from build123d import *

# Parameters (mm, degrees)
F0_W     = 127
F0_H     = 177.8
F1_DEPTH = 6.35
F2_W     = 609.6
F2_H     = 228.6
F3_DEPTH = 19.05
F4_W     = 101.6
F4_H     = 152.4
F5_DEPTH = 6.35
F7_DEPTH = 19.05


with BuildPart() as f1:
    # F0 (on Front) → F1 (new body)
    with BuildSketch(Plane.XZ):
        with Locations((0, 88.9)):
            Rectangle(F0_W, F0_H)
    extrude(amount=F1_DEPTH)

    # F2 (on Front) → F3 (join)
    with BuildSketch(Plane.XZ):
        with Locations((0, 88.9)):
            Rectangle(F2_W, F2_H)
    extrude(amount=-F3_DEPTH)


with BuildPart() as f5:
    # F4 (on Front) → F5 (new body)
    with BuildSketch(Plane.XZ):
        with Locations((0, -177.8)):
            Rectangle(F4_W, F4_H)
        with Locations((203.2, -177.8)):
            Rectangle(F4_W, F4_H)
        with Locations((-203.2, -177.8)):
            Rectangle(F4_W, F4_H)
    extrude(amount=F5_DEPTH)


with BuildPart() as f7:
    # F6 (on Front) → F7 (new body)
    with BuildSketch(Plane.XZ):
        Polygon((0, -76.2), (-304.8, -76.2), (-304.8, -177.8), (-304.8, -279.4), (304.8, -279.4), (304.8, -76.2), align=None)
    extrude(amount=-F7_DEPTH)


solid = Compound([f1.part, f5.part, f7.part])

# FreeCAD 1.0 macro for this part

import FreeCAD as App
import Part
import Sketcher
from FreeCAD import Vector
Q = App.Units.Quantity

doc = App.newDocument("Part")
body = doc.addObject("PartDesign::Body", "Body")

sketch1 = body.newObject("Sketcher::SketchObject", "Sketch")
sketch1.AttachmentSupport = (doc.getObject("XZ_Plane"), [""])
sketch1.MapMode = "FlatFace"
sketch1.addGeometry(Part.LineSegment(Vector(-64, 178, 0), Vector(-64, 0, 0)), False)
sketch1.addGeometry(Part.LineSegment(Vector(-64, 0, 0), Vector(64, 0, 0)), False)
sketch1.addGeometry(Part.LineSegment(Vector(64, 0, 0), Vector(64, 178, 0)), False)
sketch1.addGeometry(Part.LineSegment(Vector(64, 178, 0), Vector(-64, 178, 0)), False)
sketch1.addConstraint(Sketcher.Constraint("Coincident", 0, 2, 1, 1))
sketch1.addConstraint(Sketcher.Constraint("Coincident", 1, 2, 2, 1))
sketch1.addConstraint(Sketcher.Constraint("Coincident", 2, 2, 3, 1))
sketch1.addConstraint(Sketcher.Constraint("Coincident", 3, 2, 0, 1))
sketch1.addConstraint(Sketcher.Constraint("Vertical", 0))
sketch1.addConstraint(Sketcher.Constraint("Horizontal", 1))
sketch1.addConstraint(Sketcher.Constraint("Vertical", 2))
sketch1.addConstraint(Sketcher.Constraint("Horizontal", 3))
sketch1.addConstraint(Sketcher.Constraint("Symmetric", 0, 2, 1, 2, -1, 1))
sketch1.addConstraint(Sketcher.Constraint("DistanceX", 1, 1, 1, 2, Q("5 in")))
sketch1.addConstraint(Sketcher.Constraint("DistanceY", 0, 2, 0, 1, Q("7 in")))
pad1 = body.newObject("PartDesign::Pad", "Pad")
pad1.Profile = sketch1
pad1.Length = Q("0.25 in")

sketch2 = body.newObject("Sketcher::SketchObject", "Sketch001")
sketch2.AttachmentSupport = (doc.getObject("XZ_Plane"), [""])
sketch2.MapMode = "FlatFace"
sketch2.addGeometry(Part.LineSegment(Vector(-305, 203, 0), Vector(-305, -25, 0)), False)
sketch2.addGeometry(Part.LineSegment(Vector(-305, -25, 0), Vector(305, -25, 0)), False)
sketch2.addGeometry(Part.LineSegment(Vector(305, -25, 0), Vector(305, 203, 0)), False)
sketch2.addGeometry(Part.LineSegment(Vector(305, 203, 0), Vector(-305, 203, 0)), False)
sketch2.addConstraint(Sketcher.Constraint("Coincident", 0, 2, 1, 1))
sketch2.addConstraint(Sketcher.Constraint("Coincident", 1, 2, 2, 1))
sketch2.addConstraint(Sketcher.Constraint("Coincident", 2, 2, 3, 1))
sketch2.addConstraint(Sketcher.Constraint("Coincident", 3, 2, 0, 1))
sketch2.addConstraint(Sketcher.Constraint("Vertical", 0))
sketch2.addConstraint(Sketcher.Constraint("Horizontal", 1))
sketch2.addConstraint(Sketcher.Constraint("Vertical", 2))
sketch2.addConstraint(Sketcher.Constraint("Horizontal", 3))
sketch2.addConstraint(Sketcher.Constraint("DistanceX", 1, 1, 1, 2, Q("24 in")))
sketch2.addConstraint(Sketcher.Constraint("DistanceY", 0, 2, 0, 1, Q("9 in")))
sketch2.addConstraint(Sketcher.Constraint("DistanceX", 0, 2, -1, 1, Q("12 in")))
sketch2.addConstraint(Sketcher.Constraint("DistanceY", 0, 2, -1, 1, Q("1 in")))
pad2 = body.newObject("PartDesign::Pad", "Pad001")
pad2.Profile = sketch2
pad2.Length = Q("0.75 in")
pad2.Reversed = True
body2 = doc.addObject("PartDesign::Body", "Body001")
body2.AllowCompound = True

sketch3 = body2.newObject("Sketcher::SketchObject", "Sketch002")
sketch3.AttachmentSupport = (doc.getObject("XZ_Plane001"), [""])
sketch3.MapMode = "FlatFace"
sketch3.addGeometry(Part.LineSegment(Vector(-51, -102, 0), Vector(-51, -254, 0)), False)
sketch3.addGeometry(Part.LineSegment(Vector(-51, -254, 0), Vector(51, -254, 0)), False)
sketch3.addGeometry(Part.LineSegment(Vector(51, -254, 0), Vector(51, -102, 0)), False)
sketch3.addGeometry(Part.LineSegment(Vector(51, -102, 0), Vector(-51, -102, 0)), False)
sketch3.addGeometry(Part.LineSegment(Vector(152, -102, 0), Vector(152, -254, 0)), False)
sketch3.addGeometry(Part.LineSegment(Vector(152, -254, 0), Vector(254, -254, 0)), False)
sketch3.addGeometry(Part.LineSegment(Vector(254, -254, 0), Vector(254, -102, 0)), False)
sketch3.addGeometry(Part.LineSegment(Vector(254, -102, 0), Vector(152, -102, 0)), False)
sketch3.addGeometry(Part.LineSegment(Vector(-254, -102, 0), Vector(-254, -254, 0)), False)
sketch3.addGeometry(Part.LineSegment(Vector(-254, -254, 0), Vector(-152, -254, 0)), False)
sketch3.addGeometry(Part.LineSegment(Vector(-152, -254, 0), Vector(-152, -102, 0)), False)
sketch3.addGeometry(Part.LineSegment(Vector(-152, -102, 0), Vector(-254, -102, 0)), False)
sketch3.addConstraint(Sketcher.Constraint("Coincident", 0, 2, 1, 1))
sketch3.addConstraint(Sketcher.Constraint("Coincident", 1, 2, 2, 1))
sketch3.addConstraint(Sketcher.Constraint("Coincident", 2, 2, 3, 1))
sketch3.addConstraint(Sketcher.Constraint("Coincident", 3, 2, 0, 1))
sketch3.addConstraint(Sketcher.Constraint("Coincident", 4, 2, 5, 1))
sketch3.addConstraint(Sketcher.Constraint("Coincident", 5, 2, 6, 1))
sketch3.addConstraint(Sketcher.Constraint("Coincident", 6, 2, 7, 1))
sketch3.addConstraint(Sketcher.Constraint("Coincident", 7, 2, 4, 1))
sketch3.addConstraint(Sketcher.Constraint("Coincident", 8, 2, 9, 1))
sketch3.addConstraint(Sketcher.Constraint("Coincident", 9, 2, 10, 1))
sketch3.addConstraint(Sketcher.Constraint("Coincident", 10, 2, 11, 1))
sketch3.addConstraint(Sketcher.Constraint("Coincident", 11, 2, 8, 1))
sketch3.addConstraint(Sketcher.Constraint("Vertical", 0))
sketch3.addConstraint(Sketcher.Constraint("Horizontal", 1))
sketch3.addConstraint(Sketcher.Constraint("Vertical", 2))
sketch3.addConstraint(Sketcher.Constraint("Horizontal", 3))
sketch3.addConstraint(Sketcher.Constraint("Vertical", 4))
sketch3.addConstraint(Sketcher.Constraint("Horizontal", 5))
sketch3.addConstraint(Sketcher.Constraint("Vertical", 6))
sketch3.addConstraint(Sketcher.Constraint("Horizontal", 7))
sketch3.addConstraint(Sketcher.Constraint("Vertical", 8))
sketch3.addConstraint(Sketcher.Constraint("Horizontal", 9))
sketch3.addConstraint(Sketcher.Constraint("Vertical", 10))
sketch3.addConstraint(Sketcher.Constraint("Horizontal", 11))
sketch3.addConstraint(Sketcher.Constraint("Symmetric", 5, 2, 8, 2, -2))
sketch3.addConstraint(Sketcher.Constraint("Symmetric", 7, 2, 10, 2, -2))
sketch3.addConstraint(Sketcher.Constraint("Horizontal", 1, 2, 4, 2))
sketch3.addConstraint(Sketcher.Constraint("Horizontal", 3, 2, 6, 2))
sketch3.addConstraint(Sketcher.Constraint("Equal", 3, 5))
sketch3.addConstraint(Sketcher.Constraint("DistanceX", 1, 1, 1, 2, Q("4 in")))
sketch3.addConstraint(Sketcher.Constraint("DistanceY", 0, 2, 0, 1, Q("6 in")))
sketch3.addConstraint(Sketcher.Constraint("DistanceX", 0, 2, -1, 1, Q("2 in")))
sketch3.addConstraint(Sketcher.Constraint("DistanceY", 0, 2, -1, 1, Q("10 in")))
sketch3.addConstraint(Sketcher.Constraint("DistanceX", -1, 1, 4, 2, Q("6 in")))
pad3 = body2.newObject("PartDesign::Pad", "Pad002")
pad3.Profile = sketch3
pad3.Length = Q("0.25 in")
body3 = doc.addObject("PartDesign::Body", "Body002")

sketch4 = body3.newObject("Sketcher::SketchObject", "Sketch003")
sketch4.AttachmentSupport = (doc.getObject("XZ_Plane002"), [""])
sketch4.MapMode = "FlatFace"
sketch4.addGeometry(Part.LineSegment(Vector(-305, -76, 0), Vector(-305, -279, 0)), False)
sketch4.addGeometry(Part.LineSegment(Vector(-305, -279, 0), Vector(305, -279, 0)), False)
sketch4.addGeometry(Part.LineSegment(Vector(305, -279, 0), Vector(305, -76, 0)), False)
sketch4.addGeometry(Part.LineSegment(Vector(305, -76, 0), Vector(-305, -76, 0)), False)
sketch4.addConstraint(Sketcher.Constraint("Coincident", 0, 2, 1, 1))
sketch4.addConstraint(Sketcher.Constraint("Coincident", 1, 2, 2, 1))
sketch4.addConstraint(Sketcher.Constraint("Coincident", 2, 2, 3, 1))
sketch4.addConstraint(Sketcher.Constraint("Coincident", 3, 2, 0, 1))
sketch4.addConstraint(Sketcher.Constraint("Vertical", 0))
sketch4.addConstraint(Sketcher.Constraint("Horizontal", 1))
sketch4.addConstraint(Sketcher.Constraint("Vertical", 2))
sketch4.addConstraint(Sketcher.Constraint("Horizontal", 3))
sketch4.addConstraint(Sketcher.Constraint("DistanceX", 1, 1, 1, 2, Q("24 in")))
sketch4.addConstraint(Sketcher.Constraint("DistanceY", 0, 2, 0, 1, Q("8 in")))
sketch4.addConstraint(Sketcher.Constraint("DistanceX", 0, 2, -1, 1, Q("12 in")))
sketch4.addConstraint(Sketcher.Constraint("DistanceY", 0, 2, -1, 1, Q("11 in")))
pad4 = body3.newObject("PartDesign::Pad", "Pad003")
pad4.Profile = sketch4
pad4.Length = Q("0.75 in")
pad4.Reversed = True

doc.recompute()
